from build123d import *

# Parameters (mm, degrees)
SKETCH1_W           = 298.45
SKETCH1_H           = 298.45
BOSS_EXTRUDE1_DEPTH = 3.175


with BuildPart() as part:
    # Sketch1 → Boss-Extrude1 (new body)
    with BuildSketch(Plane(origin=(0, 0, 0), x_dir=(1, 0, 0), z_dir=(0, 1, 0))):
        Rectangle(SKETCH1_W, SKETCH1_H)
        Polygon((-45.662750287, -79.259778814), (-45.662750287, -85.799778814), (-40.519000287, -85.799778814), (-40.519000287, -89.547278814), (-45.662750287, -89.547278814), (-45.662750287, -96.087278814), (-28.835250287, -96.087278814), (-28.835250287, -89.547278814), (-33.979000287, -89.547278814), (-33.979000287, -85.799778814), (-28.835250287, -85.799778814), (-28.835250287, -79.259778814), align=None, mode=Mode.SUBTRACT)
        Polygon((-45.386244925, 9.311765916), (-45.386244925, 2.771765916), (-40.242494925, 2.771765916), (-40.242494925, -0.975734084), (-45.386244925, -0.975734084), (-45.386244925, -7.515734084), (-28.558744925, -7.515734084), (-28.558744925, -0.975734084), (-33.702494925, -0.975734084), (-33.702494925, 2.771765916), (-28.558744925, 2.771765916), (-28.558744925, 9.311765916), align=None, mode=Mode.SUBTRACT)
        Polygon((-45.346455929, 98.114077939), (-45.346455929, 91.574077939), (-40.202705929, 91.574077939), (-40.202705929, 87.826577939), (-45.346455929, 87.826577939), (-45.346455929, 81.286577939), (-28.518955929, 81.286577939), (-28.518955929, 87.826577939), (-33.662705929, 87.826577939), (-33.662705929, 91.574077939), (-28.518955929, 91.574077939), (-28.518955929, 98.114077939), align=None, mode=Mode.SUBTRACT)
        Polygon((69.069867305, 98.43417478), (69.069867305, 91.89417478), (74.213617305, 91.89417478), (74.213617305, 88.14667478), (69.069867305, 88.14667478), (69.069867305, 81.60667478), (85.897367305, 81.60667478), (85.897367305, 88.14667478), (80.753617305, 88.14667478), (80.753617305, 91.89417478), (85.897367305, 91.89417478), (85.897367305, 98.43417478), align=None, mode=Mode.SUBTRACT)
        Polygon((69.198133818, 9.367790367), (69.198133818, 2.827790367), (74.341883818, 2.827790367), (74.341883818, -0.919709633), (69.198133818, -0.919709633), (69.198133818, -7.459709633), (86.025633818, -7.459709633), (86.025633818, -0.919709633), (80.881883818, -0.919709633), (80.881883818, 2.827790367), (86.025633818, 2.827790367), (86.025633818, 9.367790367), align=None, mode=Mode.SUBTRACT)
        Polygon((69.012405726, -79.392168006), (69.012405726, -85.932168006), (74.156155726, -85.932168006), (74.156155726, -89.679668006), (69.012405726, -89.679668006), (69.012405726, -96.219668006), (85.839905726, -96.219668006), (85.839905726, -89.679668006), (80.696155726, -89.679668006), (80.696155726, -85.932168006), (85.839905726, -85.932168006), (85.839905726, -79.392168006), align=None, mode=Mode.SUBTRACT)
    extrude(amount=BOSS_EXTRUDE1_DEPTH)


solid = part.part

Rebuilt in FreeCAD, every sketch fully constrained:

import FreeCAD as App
import Part
import Sketcher
Q = App.Units.Quantity


def add_polygon(sketch, points):
    """Adds a closed chain of lines whose ends are joined by coincident constraints."""
    first, n = sketch.GeometryCount, len(points)
    for a, b in zip(points, points[1:] + points[:1]):
        sketch.addGeometry(Part.LineSegment(App.Vector(*a, 0), App.Vector(*b, 0)), False)
    for i in range(n):
        sketch.addConstraint(Sketcher.Constraint("Coincident", first + i, 2, first + (i + 1) % n, 1))

doc = App.newDocument("Part")
body = doc.addObject("PartDesign::Body", "Body")

# Sketch on XZ plane
sketch1 = body.newObject("Sketcher::SketchObject", "Sketch")
sketch1.AttachmentSupport = (doc.getObject("XZ_Plane"), [""])
sketch1.MapMode = "FlatFace"
add_polygon(sketch1, [(-149.2, -149.2), (-149.2, 149.2), (149.2, 149.2), (149.2, -149.2)])  # lines 0-3
add_polygon(sketch1, [(-45.7, 85.8), (-45.7, 79.3), (-28.8, 79.3), (-28.8, 85.8), (-34, 85.8), (-34, 89.5), (-28.8, 89.5), (-28.8, 96.1), (-45.7, 96.1), (-45.7, 89.5), (-40.5, 89.5), (-40.5, 85.8)])  # lines 4-15
add_polygon(sketch1, [(-45.4, -2.8), (-45.4, -9.3), (-28.6, -9.3), (-28.6, -2.8), (-33.7, -2.8), (-33.7, 1), (-28.6, 1), (-28.6, 7.5), (-45.4, 7.5), (-45.4, 1), (-40.2, 1), (-40.2, -2.8)])  # lines 16-27
add_polygon(sketch1, [(69, 85.9), (69, 79.4), (85.8, 79.4), (85.8, 85.9), (80.7, 85.9), (80.7, 89.7), (85.8, 89.7), (85.8, 96.2), (69, 96.2), (69, 89.7), (74.2, 89.7), (74.2, 85.9)])  # lines 28-39
add_polygon(sketch1, [(69.2, -2.8), (69.2, -9.4), (86, -9.4), (86, -2.8), (80.9, -2.8), (80.9, 0.9), (86, 0.9), (86, 7.5), (69.2, 7.5), (69.2, 0.9), (74.3, 0.9), (74.3, -2.8)])  # lines 40-51
add_polygon(sketch1, [(-45.3, -91.6), (-45.3, -98.1), (-28.5, -98.1), (-28.5, -91.6), (-33.7, -91.6), (-33.7, -87.8), (-28.5, -87.8), (-28.5, -81.3), (-45.3, -81.3), (-45.3, -87.8), (-40.2, -87.8), (-40.2, -91.6)])  # lines 52-63
add_polygon(sketch1, [(69.1, -91.9), (69.1, -98.4), (85.9, -98.4), (85.9, -91.9), (80.8, -91.9), (80.8, -88.1), (85.9, -88.1), (85.9, -81.6), (69.1, -81.6), (69.1, -88.1), (74.2, -88.1), (74.2, -91.9)])  # lines 64-75
sketch1.addConstraint([
    Sketcher.Constraint("Vertical", 0),
    Sketcher.Constraint("Horizontal", 1),
    Sketcher.Constraint("Vertical", 2),
    Sketcher.Constraint("Horizontal", 3),
    Sketcher.Constraint("Vertical", 4),
    Sketcher.Constraint("Horizontal", 5),
    Sketcher.Constraint("Vertical", 6),
    Sketcher.Constraint("Horizontal", 7),
    Sketcher.Constraint("Vertical", 8),
    Sketcher.Constraint("Horizontal", 9),
    Sketcher.Constraint("Vertical", 10),
    Sketcher.Constraint("Horizontal", 11),
    Sketcher.Constraint("Vertical", 12),
    Sketcher.Constraint("Horizontal", 13),
    Sketcher.Constraint("Vertical", 14),
    Sketcher.Constraint("Horizontal", 15),
    Sketcher.Constraint("Vertical", 16),
    Sketcher.Constraint("Horizontal", 17),
    Sketcher.Constraint("Vertical", 18),
    Sketcher.Constraint("Horizontal", 19),
    Sketcher.Constraint("Vertical", 20),
    Sketcher.Constraint("Horizontal", 21),
    Sketcher.Constraint("Vertical", 22),
    Sketcher.Constraint("Horizontal", 23),
    Sketcher.Constraint("Vertical", 24),
    Sketcher.Constraint("Horizontal", 25),
    Sketcher.Constraint("Vertical", 26),
    Sketcher.Constraint("Horizontal", 27),
    Sketcher.Constraint("Vertical", 28),
    Sketcher.Constraint("Horizontal", 29),
    Sketcher.Constraint("Vertical", 30),
    Sketcher.Constraint("Horizontal", 31),
    Sketcher.Constraint("Vertical", 32),
    Sketcher.Constraint("Horizontal", 33),
    Sketcher.Constraint("Vertical", 34),
    Sketcher.Constraint("Horizontal", 35),
    Sketcher.Constraint("Vertical", 36),
    Sketcher.Constraint("Horizontal", 37),
    Sketcher.Constraint("Vertical", 38),
    Sketcher.Constraint("Horizontal", 39),
    Sketcher.Constraint("Vertical", 40),
    Sketcher.Constraint("Horizontal", 41),
    Sketcher.Constraint("Vertical", 42),
    Sketcher.Constraint("Horizontal", 43),
    Sketcher.Constraint("Vertical", 44),
    Sketcher.Constraint("Horizontal", 45),
    Sketcher.Constraint("Vertical", 46),
    Sketcher.Constraint("Horizontal", 47),
    Sketcher.Constraint("Vertical", 48),
    Sketcher.Constraint("Horizontal", 49),
    Sketcher.Constraint("Vertical", 50),
    Sketcher.Constraint("Horizontal", 51),
    Sketcher.Constraint("Vertical", 52),
    Sketcher.Constraint("Horizontal", 53),
    Sketcher.Constraint("Vertical", 54),
    Sketcher.Constraint("Horizontal", 55),
    Sketcher.Constraint("Vertical", 56),
    Sketcher.Constraint("Horizontal", 57),
    Sketcher.Constraint("Vertical", 58),
    Sketcher.Constraint("Horizontal", 59),
    Sketcher.Constraint("Vertical", 60),
    Sketcher.Constraint("Horizontal", 61),
    Sketcher.Constraint("Vertical", 62),
    Sketcher.Constraint("Horizontal", 63),
    Sketcher.Constraint("Vertical", 64),
    Sketcher.Constraint("Horizontal", 65),
    Sketcher.Constraint("Vertical", 66),
    Sketcher.Constraint("Horizontal", 67),
    Sketcher.Constraint("Vertical", 68),
    Sketcher.Constraint("Horizontal", 69),
    Sketcher.Constraint("Vertical", 70),
    Sketcher.Constraint("Horizontal", 71),
    Sketcher.Constraint("Vertical", 72),
    Sketcher.Constraint("Horizontal", 73),
    Sketcher.Constraint("Vertical", 74),
    Sketcher.Constraint("Horizontal", 75),
    Sketcher.Constraint("Symmetric", 0, 2, 2, 2, -1, 1),
    Sketcher.Constraint("Horizontal", 9, 2, 12, 2),
    Sketcher.Constraint("Horizontal", 7, 2, 14, 2),
    Sketcher.Constraint("Horizontal", 21, 2, 24, 2),
    Sketcher.Constraint("Horizontal", 19, 2, 26, 2),
    Sketcher.Constraint("Horizontal", 33, 2, 36, 2),
    Sketcher.Constraint("Horizontal", 31, 2, 38, 2),
    Sketcher.Constraint("Horizontal", 45, 2, 48, 2),
    Sketcher.Constraint("Horizontal", 43, 2, 50, 2),
    Sketcher.Constraint("Horizontal", 57, 2, 60, 2),
    Sketcher.Constraint("Horizontal", 55, 2, 62, 2),
    Sketcher.Constraint("Horizontal", 69, 2, 72, 2),
    Sketcher.Constraint("Horizontal", 67, 2, 74, 2),
    Sketcher.Constraint("Vertical", 6, 2, 9, 2),
    Sketcher.Constraint("Vertical", 4, 2, 11, 2),
    Sketcher.Constraint("Vertical", 18, 2, 21, 2),
    Sketcher.Constraint("Vertical", 16, 2, 23, 2),
    Sketcher.Constraint("Vertical", 30, 2, 33, 2),
    Sketcher.Constraint("Vertical", 28, 2, 35, 2),
    Sketcher.Constraint("Vertical", 42, 2, 45, 2),
    Sketcher.Constraint("Vertical", 40, 2, 47, 2),
    Sketcher.Constraint("Vertical", 54, 2, 57, 2),
    Sketcher.Constraint("Vertical", 52, 2, 59, 2),
    Sketcher.Constraint("Vertical", 66, 2, 69, 2),
    Sketcher.Constraint("Vertical", 64, 2, 71, 2),
    Sketcher.Constraint("Equal", 9, 13),
    Sketcher.Constraint("Equal", 11, 17),
    Sketcher.Constraint("Equal", 15, 19),
    Sketcher.Constraint("Equal", 21, 25),
    Sketcher.Constraint("Equal", 23, 29),
    Sketcher.Constraint("Equal", 27, 31),
    Sketcher.Constraint("Equal", 33, 37),
    Sketcher.Constraint("Equal", 35, 41),
    Sketcher.Constraint("Equal", 39, 43),
    Sketcher.Constraint("Equal", 45, 49),
    Sketcher.Constraint("Equal", 47, 53),
    Sketcher.Constraint("Equal", 51, 55),
    Sketcher.Constraint("Equal", 57, 61),
    Sketcher.Constraint("Equal", 59, 65),
    Sketcher.Constraint("Equal", 63, 67),
    Sketcher.Constraint("Equal", 69, 73),
    Sketcher.Constraint("Equal", 3, 0),
    Sketcher.Constraint("Equal", 6, 10),
    Sketcher.Constraint("Equal", 12, 16),
    Sketcher.Constraint("Equal", 14, 20),
    Sketcher.Constraint("Equal", 18, 22),
    Sketcher.Constraint("Equal", 24, 28),
    Sketcher.Constraint("Equal", 26, 32),
    Sketcher.Constraint("Equal", 30, 34),
    Sketcher.Constraint("Equal", 36, 40),
    Sketcher.Constraint("Equal", 38, 44),
    Sketcher.Constraint("Equal", 42, 46),
    Sketcher.Constraint("Equal", 48, 52),
    Sketcher.Constraint("Equal", 50, 56),
    Sketcher.Constraint("Equal", 54, 58),
    Sketcher.Constraint("Equal", 60, 64),
    Sketcher.Constraint("Equal", 62, 68),
    Sketcher.Constraint("Equal", 66, 70),
    Sketcher.Constraint("DistanceX", 1, 1, 1, 2, Q("11.75 in")),
    Sketcher.Constraint("DistanceX", 5, 1, 5, 2, Q("0.6625 in")),
    Sketcher.Constraint("DistanceY", 4, 2, 4, 1, Q("6.54 mm")),
    Sketcher.Constraint("DistanceY", 8, 1, 8, 2, Q("3.7475 mm")),
    Sketcher.Constraint("DistanceX", 7, 2, 7, 1, Q("5.14375 mm")),
    Sketcher.Constraint("DistanceX", 7, 2, -1, 1, Q("33.979 mm")),
    Sketcher.Constraint("DistanceY", -1, 1, 4, 2, Q("79.259779 mm")),
    Sketcher.Constraint("DistanceY", -1, 1, 28, 2, Q("79.392168 mm")),
    Sketcher.Constraint("DistanceY", 40, 2, -1, 1, Q("9.36779 mm")),
    Sketcher.Constraint("DistanceX", 16, 2, -1, 1, Q("45.386245 mm")),
    Sketcher.Constraint("DistanceY", 16, 2, -1, 1, Q("9.311766 mm")),
    Sketcher.Constraint("DistanceX", -1, 1, 28, 2, Q("69.012406 mm")),
    Sketcher.Constraint("DistanceX", -1, 1, 40, 2, Q("69.198134 mm")),
    Sketcher.Constraint("DistanceX", 52, 2, -1, 1, Q("45.346456 mm")),
    Sketcher.Constraint("DistanceY", 52, 2, -1, 1, Q("98.114078 mm")),
    Sketcher.Constraint("DistanceX", -1, 1, 64, 2, Q("69.069867 mm")),
    Sketcher.Constraint("DistanceY", 64, 2, -1, 1, Q("98.434175 mm")),
])
pad1 = body.newObject("PartDesign::Pad", "Pad")
pad1.Profile = sketch1
pad1.Length = Q("0.125 in")
pad1.Reversed = True

doc.recompute()
